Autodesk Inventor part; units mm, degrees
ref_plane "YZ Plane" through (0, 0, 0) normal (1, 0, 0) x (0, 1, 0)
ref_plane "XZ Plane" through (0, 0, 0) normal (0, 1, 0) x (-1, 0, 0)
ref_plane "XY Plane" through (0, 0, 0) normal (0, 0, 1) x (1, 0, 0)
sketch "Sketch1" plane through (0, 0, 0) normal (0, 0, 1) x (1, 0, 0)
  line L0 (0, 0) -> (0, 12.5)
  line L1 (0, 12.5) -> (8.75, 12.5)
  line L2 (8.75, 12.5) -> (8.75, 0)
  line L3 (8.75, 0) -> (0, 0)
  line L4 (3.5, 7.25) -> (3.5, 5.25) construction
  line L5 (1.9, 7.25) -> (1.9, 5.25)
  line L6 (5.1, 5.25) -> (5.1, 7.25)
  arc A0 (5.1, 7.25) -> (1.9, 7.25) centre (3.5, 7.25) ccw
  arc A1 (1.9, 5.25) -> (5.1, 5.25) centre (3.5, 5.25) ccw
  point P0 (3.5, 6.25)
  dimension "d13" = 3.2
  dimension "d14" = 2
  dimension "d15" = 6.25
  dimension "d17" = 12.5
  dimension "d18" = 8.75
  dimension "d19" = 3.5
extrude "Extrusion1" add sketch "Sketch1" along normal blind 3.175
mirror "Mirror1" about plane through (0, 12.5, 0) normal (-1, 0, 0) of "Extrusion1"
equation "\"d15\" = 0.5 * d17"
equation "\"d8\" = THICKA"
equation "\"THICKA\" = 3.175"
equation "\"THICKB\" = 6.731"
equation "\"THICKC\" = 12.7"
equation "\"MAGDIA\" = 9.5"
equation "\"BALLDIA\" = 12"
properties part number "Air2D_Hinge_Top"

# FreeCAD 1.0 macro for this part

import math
import FreeCAD as App
import Part
import Sketcher

V = App.Vector
Q = App.Units.Quantity


def add_polygon(sketch, points):
    """Adds a closed chain of lines whose ends are joined by coincident constraints."""
    first, n = sketch.GeometryCount, len(points)
    for a, b in zip(points, points[1:] + points[:1]):
        sketch.addGeometry(Part.LineSegment(App.Vector(*a, 0), App.Vector(*b, 0)), False)
    for i in range(n):
        sketch.addConstraint(Sketcher.Constraint("Coincident", first + i, 2, first + (i + 1) % n, 1))

doc = App.newDocument("Part")
body = doc.addObject("PartDesign::Body", "Body")

# Sketch on XY plane
sketch1 = doc.addObject("Sketcher::SketchObject", "Sketch")
body.addObject(sketch1)
sketch1.AttachmentSupport = (doc.XY_Plane, [""])
sketch1.MapMode = "FlatFace"
add_polygon(sketch1, [(0, 12.5), (0, 0), (8.75, 0), (8.75, 12.5)])  # lines 0-3
sketch1.addGeometry(Part.LineSegment(V(1.9, 5.25, 0), V(1.9, 7.25, 0)), False)  # 4
sketch1.addGeometry(Part.ArcOfCircle(Part.Circle(V(3.5, 7.25, 0), V(0, 0, 1), 1.6), math.radians(0), math.radians(180)), False)  # 5
sketch1.addGeometry(Part.LineSegment(V(5.1, 7.25, 0), V(5.1, 5.25, 0)), False)  # 6
sketch1.addGeometry(Part.ArcOfCircle(Part.Circle(V(3.5, 5.25, 0), V(0, 0, 1), 1.6), math.radians(180), math.radians(360)), False)  # 7
sketch1.addConstraint([
    Sketcher.Constraint("Tangent", 4, 2, 5, 2),
    Sketcher.Constraint("Tangent", 5, 1, 6, 1),
    Sketcher.Constraint("Tangent", 6, 2, 7, 2),
    Sketcher.Constraint("Tangent", 7, 1, 4, 1),
    Sketcher.Constraint("Vertical", 0),
    Sketcher.Constraint("Horizontal", 1),
    Sketcher.Constraint("Vertical", 2),
    Sketcher.Constraint("Horizontal", 3),
    Sketcher.Constraint("Vertical", 4),
    Sketcher.Constraint("Vertical", 6),
    Sketcher.Constraint("Coincident", 0, 2, -1, 1),
    Sketcher.Constraint("Radius", 5, Q("1.6 mm")),
    Sketcher.Constraint("DistanceY", 4, 1, 4, 2, Q("2 mm")),
    Sketcher.Constraint("DistanceY", 0, 2, 0, 1, Q("12.5 mm")),
    Sketcher.Constraint("DistanceX", 1, 1, 1, 2, Q("8.75 mm")),
    Sketcher.Constraint("DistanceX", -1, 1, 5, 3, Q("3.5 mm")),
    Sketcher.Constraint("DistanceY", -1, 1, 5, 3, Q("7.25 mm")),
])
pad1 = doc.addObject("PartDesign::Pad", "Pad")
body.addObject(pad1)
pad1.Profile = sketch1
pad1.Length = 3.175
doc.recompute()

mirrored = doc.addObject("PartDesign::Mirrored", "Mirrored")
body.addObject(mirrored)
mirrored.Originals = [pad1]
mirrored.MirrorPlane = (doc.YZ_Plane, [""])
body.Tip = mirrored

doc.recompute()
